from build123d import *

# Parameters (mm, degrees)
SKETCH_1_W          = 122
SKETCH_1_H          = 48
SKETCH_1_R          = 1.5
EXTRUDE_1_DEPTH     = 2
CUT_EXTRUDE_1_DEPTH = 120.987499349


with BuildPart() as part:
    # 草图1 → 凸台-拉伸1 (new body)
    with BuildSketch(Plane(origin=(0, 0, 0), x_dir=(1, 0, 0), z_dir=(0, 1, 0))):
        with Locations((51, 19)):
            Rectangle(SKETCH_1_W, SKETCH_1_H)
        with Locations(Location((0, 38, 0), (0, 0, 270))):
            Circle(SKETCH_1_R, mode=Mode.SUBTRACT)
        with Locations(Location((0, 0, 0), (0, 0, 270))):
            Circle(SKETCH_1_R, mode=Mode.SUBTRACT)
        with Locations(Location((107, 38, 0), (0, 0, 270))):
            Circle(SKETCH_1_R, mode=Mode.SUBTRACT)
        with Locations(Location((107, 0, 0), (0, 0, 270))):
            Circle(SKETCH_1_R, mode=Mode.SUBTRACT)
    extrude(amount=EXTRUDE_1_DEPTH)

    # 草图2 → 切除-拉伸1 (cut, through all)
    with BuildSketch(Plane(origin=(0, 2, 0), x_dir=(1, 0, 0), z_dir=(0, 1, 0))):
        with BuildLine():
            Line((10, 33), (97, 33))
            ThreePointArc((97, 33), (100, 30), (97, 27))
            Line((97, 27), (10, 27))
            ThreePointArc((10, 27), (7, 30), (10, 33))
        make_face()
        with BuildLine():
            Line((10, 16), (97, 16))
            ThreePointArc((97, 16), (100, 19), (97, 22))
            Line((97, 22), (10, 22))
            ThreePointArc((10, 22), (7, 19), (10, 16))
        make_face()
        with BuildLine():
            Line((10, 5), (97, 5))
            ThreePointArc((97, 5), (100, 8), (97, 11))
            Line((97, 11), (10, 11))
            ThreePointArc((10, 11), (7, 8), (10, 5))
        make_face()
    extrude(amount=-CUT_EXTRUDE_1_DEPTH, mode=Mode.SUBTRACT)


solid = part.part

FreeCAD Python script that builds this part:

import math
import FreeCAD as App
import Part
import Sketcher
Q = App.Units.Quantity


def add_polygon(sketch, points):
    """Adds a closed chain of lines whose ends are joined by coincident constraints."""
    first, n = sketch.GeometryCount, len(points)
    for a, b in zip(points, points[1:] + points[:1]):
        sketch.addGeometry(Part.LineSegment(App.Vector(*a, 0), App.Vector(*b, 0)), False)
    for i in range(n):
        sketch.addConstraint(Sketcher.Constraint("Coincident", first + i, 2, first + (i + 1) % n, 1))

doc = App.newDocument("Part")
body = doc.addObject("PartDesign::Body", "Body")

# Sketch on XZ plane
sketch1 = body.newObject("Sketcher::SketchObject", "Sketch")
sketch1.AttachmentSupport = (doc.getObject("XZ_Plane"), [""])
sketch1.MapMode = "FlatFace"
add_polygon(sketch1, [(-10, -43), (-10, 5), (112, 5), (112, -43)])  # lines 0-3
sketch1.addGeometry(Part.Circle(App.Vector(0, 0, 0), App.Vector(0, 0, 1), 1.5), False)  # 4
sketch1.addGeometry(Part.Circle(App.Vector(107, 0, 0), App.Vector(0, 0, 1), 1.5), False)  # 5
sketch1.addGeometry(Part.Circle(App.Vector(0, -38, 0), App.Vector(0, 0, 1), 1.5), False)  # 6
sketch1.addGeometry(Part.Circle(App.Vector(107, -38, 0), App.Vector(0, 0, 1), 1.5), False)  # 7
sketch1.addConstraint([
    Sketcher.Constraint("Vertical", 0),
    Sketcher.Constraint("Horizontal", 1),
    Sketcher.Constraint("Vertical", 2),
    Sketcher.Constraint("Horizontal", 3),
    Sketcher.Constraint("Coincident", 4, 3, -1, 1),
    Sketcher.Constraint("Equal", 4, 5),
    Sketcher.Constraint("Equal", 5, 6),
    Sketcher.Constraint("Equal", 6, 7),
    Sketcher.Constraint("PointOnObject", 5, 3, -1),
    Sketcher.Constraint("PointOnObject", 6, 3, -2),
    Sketcher.Constraint("Horizontal", 6, 3, 7, 3),
    Sketcher.Constraint("Vertical", 5, 3, 7, 3),
    Sketcher.Constraint("Diameter", 4, Q("3 mm")),
    Sketcher.Constraint("DistanceX", 1, 1, 1, 2, Q("122 mm")),
    Sketcher.Constraint("DistanceY", 0, 1, 0, 2, Q("48 mm")),
    Sketcher.Constraint("DistanceX", -1, 1, 5, 3, Q("107 mm")),
    Sketcher.Constraint("DistanceY", 6, 3, -1, 1, Q("38 mm")),
    Sketcher.Constraint("DistanceX", 0, 2, -1, 1, Q("10 mm")),
    Sketcher.Constraint("DistanceY", -1, 1, 0, 2, Q("5 mm")),
])
pad1 = body.newObject("PartDesign::Pad", "Pad")
pad1.Profile = sketch1
pad1.Length = 2
pad1.Reversed = True

# Sketch on XZ plane
sketch2 = body.newObject("Sketcher::SketchObject", "Sketch001")
sketch2.AttachmentSupport = (doc.getObject("XZ_Plane"), [""])
sketch2.MapMode = "FlatFace"
sketch2.AttachmentOffset = App.Placement(App.Vector(0, 0, -2), App.Rotation())
sketch2.addGeometry([
    Part.LineSegment(App.Vector(97, -33, 0), App.Vector(10, -33, 0)),  # 0
    Part.ArcOfCircle(Part.Circle(App.Vector(10, -30, 0), App.Vector(0, 0, 1), 3), math.radians(90), math.radians(270)),  # 1
    Part.LineSegment(App.Vector(10, -27, 0), App.Vector(97, -27, 0)),  # 2
    Part.ArcOfCircle(Part.Circle(App.Vector(97, -30, 0), App.Vector(0, 0, 1), 3), math.radians(-90), math.radians(90)),  # 3
    Part.LineSegment(App.Vector(10, -16, 0), App.Vector(97, -16, 0)),  # 4
    Part.ArcOfCircle(Part.Circle(App.Vector(97, -19, 0), App.Vector(0, 0, 1), 3), math.radians(-90), math.radians(90)),  # 5
    Part.LineSegment(App.Vector(97, -22, 0), App.Vector(10, -22, 0)),  # 6
    Part.ArcOfCircle(Part.Circle(App.Vector(10, -19, 0), App.Vector(0, 0, 1), 3), math.radians(90), math.radians(270)),  # 7
    Part.LineSegment(App.Vector(10, -5, 0), App.Vector(97, -5, 0)),  # 8
    Part.ArcOfCircle(Part.Circle(App.Vector(97, -8, 0), App.Vector(0, 0, 1), 3), math.radians(-90), math.radians(90)),  # 9
    Part.LineSegment(App.Vector(97, -11, 0), App.Vector(10, -11, 0)),  # 10
    Part.ArcOfCircle(Part.Circle(App.Vector(10, -8, 0), App.Vector(0, 0, 1), 3), math.radians(90), math.radians(270)),  # 11
], False)
sketch2.addConstraint([
    Sketcher.Constraint("Tangent", 0, 2, 1, 2),
    Sketcher.Constraint("Tangent", 1, 1, 2, 1),
    Sketcher.Constraint("Tangent", 2, 2, 3, 2),
    Sketcher.Constraint("Tangent", 3, 1, 0, 1),
    Sketcher.Constraint("Tangent", 4, 2, 5, 2),
    Sketcher.Constraint("Tangent", 5, 1, 6, 1),
    Sketcher.Constraint("Tangent", 6, 2, 7, 2),
    Sketcher.Constraint("Tangent", 7, 1, 4, 1),
    Sketcher.Constraint("Tangent", 8, 2, 9, 2),
    Sketcher.Constraint("Tangent", 9, 1, 10, 1),
    Sketcher.Constraint("Tangent", 10, 2, 11, 2),
    Sketcher.Constraint("Tangent", 11, 1, 8, 1),
    Sketcher.Constraint("Horizontal", 0),
    Sketcher.Constraint("Horizontal", 2),
    Sketcher.Constraint("Horizontal", 4),
    Sketcher.Constraint("Horizontal", 6),
    Sketcher.Constraint("Horizontal", 8),
    Sketcher.Constraint("Horizontal", 10),
    Sketcher.Constraint("Equal", 3, 5),
    Sketcher.Constraint("Equal", 7, 9),
    Sketcher.Constraint("Vertical", 3, 3, 5, 3),
    Sketcher.Constraint("Vertical", 1, 3, 7, 3),
    Sketcher.Constraint("Vertical", 5, 3, 9, 3),
    Sketcher.Constraint("Vertical", 7, 3, 11, 3),
    Sketcher.Constraint("Radius", 1, Q("3 mm")),
    Sketcher.Constraint("DistanceX", 0, 2, 0, 1, Q("87 mm")),
    Sketcher.Constraint("DistanceX", -1, 1, 1, 3, Q("10 mm")),
    Sketcher.Constraint("DistanceY", 1, 3, -1, 1, Q("30 mm")),
    Sketcher.Constraint("DistanceY", 5, 3, -1, 1, Q("19 mm")),
    Sketcher.Constraint("DistanceY", 9, 3, -1, 1, Q("8 mm")),
])
pocket1 = body.newObject("PartDesign::Pocket", "Pocket")
pocket1.Profile = sketch2
pocket1.Type = "ThroughAll"
pocket1.Reversed = True

doc.recompute()
